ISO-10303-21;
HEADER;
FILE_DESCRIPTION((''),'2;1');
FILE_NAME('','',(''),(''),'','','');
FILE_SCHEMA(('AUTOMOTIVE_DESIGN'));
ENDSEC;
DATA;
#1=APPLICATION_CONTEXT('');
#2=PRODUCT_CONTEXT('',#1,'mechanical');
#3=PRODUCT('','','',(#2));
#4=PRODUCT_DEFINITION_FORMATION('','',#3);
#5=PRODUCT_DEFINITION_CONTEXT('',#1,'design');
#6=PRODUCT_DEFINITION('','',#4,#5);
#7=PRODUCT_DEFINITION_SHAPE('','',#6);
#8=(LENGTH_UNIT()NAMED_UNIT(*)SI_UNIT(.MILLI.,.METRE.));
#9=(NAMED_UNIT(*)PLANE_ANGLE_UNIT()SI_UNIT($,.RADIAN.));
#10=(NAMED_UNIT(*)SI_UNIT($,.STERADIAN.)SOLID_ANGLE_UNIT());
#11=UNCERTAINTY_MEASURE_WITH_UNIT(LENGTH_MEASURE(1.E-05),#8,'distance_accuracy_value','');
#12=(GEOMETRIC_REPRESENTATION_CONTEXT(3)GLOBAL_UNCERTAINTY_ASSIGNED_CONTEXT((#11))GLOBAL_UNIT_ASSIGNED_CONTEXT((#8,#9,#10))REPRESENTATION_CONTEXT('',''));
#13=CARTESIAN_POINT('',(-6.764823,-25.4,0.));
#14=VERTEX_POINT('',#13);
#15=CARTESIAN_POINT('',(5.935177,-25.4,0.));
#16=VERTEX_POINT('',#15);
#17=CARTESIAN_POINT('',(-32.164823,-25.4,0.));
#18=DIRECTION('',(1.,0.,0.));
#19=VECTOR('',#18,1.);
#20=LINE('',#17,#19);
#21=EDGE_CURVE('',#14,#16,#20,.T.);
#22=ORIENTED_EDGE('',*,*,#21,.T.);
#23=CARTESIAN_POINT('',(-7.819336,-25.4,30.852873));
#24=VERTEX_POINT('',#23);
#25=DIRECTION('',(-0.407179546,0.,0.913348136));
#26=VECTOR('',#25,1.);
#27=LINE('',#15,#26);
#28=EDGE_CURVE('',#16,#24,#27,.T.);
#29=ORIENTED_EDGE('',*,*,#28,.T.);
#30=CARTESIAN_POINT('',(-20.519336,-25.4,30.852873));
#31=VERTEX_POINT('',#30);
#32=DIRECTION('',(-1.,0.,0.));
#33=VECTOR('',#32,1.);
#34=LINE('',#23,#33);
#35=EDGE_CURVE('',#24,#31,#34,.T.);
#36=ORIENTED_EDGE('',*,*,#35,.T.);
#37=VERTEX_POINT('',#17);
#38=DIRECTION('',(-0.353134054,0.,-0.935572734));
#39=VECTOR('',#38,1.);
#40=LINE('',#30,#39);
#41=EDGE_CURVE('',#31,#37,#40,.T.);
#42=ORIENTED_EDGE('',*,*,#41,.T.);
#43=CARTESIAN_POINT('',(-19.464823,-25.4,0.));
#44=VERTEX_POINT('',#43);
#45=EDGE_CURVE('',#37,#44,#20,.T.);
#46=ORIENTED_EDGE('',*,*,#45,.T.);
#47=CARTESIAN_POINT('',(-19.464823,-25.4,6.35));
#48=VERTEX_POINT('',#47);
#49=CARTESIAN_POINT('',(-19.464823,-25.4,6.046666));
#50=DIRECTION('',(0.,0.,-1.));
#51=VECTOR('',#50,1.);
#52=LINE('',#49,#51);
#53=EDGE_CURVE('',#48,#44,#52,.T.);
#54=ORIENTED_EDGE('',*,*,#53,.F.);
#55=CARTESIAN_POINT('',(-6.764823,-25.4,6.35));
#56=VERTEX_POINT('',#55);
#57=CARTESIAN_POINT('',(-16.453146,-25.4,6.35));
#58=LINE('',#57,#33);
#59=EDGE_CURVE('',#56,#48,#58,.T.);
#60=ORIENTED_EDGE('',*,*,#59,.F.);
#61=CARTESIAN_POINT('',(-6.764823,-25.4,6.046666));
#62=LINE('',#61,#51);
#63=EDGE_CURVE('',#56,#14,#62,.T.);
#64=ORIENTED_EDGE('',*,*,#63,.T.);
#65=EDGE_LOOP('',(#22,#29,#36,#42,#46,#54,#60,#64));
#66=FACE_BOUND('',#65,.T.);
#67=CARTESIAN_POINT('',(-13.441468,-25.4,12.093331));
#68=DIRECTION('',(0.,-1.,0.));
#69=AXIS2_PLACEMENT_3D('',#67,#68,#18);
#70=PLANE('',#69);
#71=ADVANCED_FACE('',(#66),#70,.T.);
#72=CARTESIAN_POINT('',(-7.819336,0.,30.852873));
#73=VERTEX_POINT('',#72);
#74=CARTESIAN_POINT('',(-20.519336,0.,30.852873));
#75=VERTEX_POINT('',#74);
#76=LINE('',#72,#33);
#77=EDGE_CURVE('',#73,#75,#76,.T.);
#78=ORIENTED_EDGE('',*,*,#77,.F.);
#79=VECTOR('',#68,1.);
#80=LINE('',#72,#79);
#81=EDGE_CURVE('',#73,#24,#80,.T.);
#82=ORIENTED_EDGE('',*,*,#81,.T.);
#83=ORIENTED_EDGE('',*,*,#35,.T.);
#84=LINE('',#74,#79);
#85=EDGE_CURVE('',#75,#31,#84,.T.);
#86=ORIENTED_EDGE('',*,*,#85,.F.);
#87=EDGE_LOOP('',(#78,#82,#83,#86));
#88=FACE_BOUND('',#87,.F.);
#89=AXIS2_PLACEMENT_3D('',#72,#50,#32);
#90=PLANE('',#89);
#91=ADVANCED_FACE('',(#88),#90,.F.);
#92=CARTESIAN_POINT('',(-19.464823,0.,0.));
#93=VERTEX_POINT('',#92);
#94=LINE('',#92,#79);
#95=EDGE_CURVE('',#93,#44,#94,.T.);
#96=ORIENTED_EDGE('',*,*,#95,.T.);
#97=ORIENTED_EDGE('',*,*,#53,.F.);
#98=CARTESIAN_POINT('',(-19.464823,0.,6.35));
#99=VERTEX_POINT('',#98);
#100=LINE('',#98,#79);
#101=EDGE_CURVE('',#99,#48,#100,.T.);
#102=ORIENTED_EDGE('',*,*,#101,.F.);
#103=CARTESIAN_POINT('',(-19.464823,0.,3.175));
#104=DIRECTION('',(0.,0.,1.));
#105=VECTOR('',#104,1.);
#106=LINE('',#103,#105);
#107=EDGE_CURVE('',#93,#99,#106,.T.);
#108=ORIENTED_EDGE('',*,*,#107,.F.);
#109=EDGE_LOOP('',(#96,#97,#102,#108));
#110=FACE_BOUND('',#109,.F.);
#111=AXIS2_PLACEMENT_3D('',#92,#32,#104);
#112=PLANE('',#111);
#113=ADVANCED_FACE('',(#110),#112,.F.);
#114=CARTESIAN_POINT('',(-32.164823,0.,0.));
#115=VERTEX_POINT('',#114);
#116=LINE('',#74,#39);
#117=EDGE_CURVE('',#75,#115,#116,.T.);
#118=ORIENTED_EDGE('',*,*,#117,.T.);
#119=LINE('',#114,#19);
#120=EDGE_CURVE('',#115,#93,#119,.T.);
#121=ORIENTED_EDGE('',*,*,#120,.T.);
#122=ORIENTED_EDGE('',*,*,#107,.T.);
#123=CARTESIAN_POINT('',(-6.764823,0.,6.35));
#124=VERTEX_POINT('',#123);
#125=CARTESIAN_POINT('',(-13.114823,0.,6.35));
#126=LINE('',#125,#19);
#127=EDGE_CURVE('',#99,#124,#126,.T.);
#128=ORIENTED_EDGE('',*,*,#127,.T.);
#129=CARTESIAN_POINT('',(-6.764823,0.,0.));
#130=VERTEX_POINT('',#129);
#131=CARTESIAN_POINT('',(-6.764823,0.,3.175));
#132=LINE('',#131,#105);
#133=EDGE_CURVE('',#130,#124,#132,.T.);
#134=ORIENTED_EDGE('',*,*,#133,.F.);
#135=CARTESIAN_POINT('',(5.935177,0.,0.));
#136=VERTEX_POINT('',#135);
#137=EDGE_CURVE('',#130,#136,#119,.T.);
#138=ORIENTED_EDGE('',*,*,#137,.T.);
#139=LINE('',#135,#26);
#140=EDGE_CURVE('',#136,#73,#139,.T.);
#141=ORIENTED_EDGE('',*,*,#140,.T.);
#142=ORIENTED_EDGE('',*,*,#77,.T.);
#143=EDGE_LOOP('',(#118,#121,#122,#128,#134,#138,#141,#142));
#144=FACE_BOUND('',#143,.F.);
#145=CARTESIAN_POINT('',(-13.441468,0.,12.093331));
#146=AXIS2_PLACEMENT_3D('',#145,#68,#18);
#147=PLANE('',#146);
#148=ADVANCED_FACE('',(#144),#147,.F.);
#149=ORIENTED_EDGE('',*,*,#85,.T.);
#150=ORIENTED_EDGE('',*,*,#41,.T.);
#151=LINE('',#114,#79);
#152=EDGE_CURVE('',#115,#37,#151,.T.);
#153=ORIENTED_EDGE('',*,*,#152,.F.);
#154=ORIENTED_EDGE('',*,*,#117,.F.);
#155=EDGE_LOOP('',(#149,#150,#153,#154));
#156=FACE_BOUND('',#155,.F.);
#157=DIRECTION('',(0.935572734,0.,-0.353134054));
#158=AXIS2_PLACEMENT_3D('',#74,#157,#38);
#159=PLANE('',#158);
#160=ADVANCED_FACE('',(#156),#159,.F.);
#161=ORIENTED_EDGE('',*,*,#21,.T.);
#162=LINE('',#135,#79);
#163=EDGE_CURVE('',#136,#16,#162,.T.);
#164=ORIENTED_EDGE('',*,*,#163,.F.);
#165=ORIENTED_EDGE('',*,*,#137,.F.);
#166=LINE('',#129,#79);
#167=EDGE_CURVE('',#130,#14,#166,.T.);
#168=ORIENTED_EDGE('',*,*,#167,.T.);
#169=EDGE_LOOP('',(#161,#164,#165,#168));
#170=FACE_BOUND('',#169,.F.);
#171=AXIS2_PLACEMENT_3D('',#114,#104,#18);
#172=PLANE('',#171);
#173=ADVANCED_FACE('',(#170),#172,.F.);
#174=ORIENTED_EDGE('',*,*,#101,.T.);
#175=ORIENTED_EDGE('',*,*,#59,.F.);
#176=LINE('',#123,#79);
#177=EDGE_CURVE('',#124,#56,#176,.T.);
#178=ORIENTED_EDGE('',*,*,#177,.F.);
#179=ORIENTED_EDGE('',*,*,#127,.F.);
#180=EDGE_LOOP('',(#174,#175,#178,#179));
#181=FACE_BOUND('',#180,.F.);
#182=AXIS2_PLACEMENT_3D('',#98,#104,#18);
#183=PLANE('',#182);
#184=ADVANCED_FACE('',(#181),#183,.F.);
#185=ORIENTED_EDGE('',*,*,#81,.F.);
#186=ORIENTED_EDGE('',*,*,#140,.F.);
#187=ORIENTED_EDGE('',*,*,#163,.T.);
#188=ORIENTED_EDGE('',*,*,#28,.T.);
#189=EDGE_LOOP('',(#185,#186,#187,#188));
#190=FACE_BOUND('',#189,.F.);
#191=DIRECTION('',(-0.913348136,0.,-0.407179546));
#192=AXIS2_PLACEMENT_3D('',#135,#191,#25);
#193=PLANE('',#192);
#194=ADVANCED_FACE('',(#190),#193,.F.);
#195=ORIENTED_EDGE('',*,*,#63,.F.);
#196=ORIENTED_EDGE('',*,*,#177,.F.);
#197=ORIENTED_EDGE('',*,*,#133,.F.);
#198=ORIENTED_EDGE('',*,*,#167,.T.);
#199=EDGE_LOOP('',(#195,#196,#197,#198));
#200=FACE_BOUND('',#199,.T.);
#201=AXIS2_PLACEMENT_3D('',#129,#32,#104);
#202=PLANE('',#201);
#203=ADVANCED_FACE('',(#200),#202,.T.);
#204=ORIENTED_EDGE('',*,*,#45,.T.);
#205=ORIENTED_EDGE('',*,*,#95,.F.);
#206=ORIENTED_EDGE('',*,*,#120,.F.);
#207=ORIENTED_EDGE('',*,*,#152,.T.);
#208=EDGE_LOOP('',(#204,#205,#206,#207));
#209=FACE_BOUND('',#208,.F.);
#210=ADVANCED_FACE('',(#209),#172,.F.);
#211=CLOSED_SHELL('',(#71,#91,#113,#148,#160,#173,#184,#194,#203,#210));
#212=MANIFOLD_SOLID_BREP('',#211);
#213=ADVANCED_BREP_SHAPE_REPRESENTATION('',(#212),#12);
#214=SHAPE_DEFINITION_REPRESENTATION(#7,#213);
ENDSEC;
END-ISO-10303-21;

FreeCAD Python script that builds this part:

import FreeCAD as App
import Part
import Sketcher

V = App.Vector
Q = App.Units.Quantity


def add_polygon(sketch, points):
    """Adds a closed chain of lines whose ends are joined by coincident constraints."""
    first, n = sketch.GeometryCount, len(points)
    for a, b in zip(points, points[1:] + points[:1]):
        sketch.addGeometry(Part.LineSegment(App.Vector(*a, 0), App.Vector(*b, 0)), False)
    for i in range(n):
        sketch.addConstraint(Sketcher.Constraint("Coincident", first + i, 2, first + (i + 1) % n, 1))

doc = App.newDocument("Part")
body = doc.addObject("PartDesign::Body", "Body")

# Sketch on XZ plane
sketch1 = doc.addObject("Sketcher::SketchObject", "Sketch")
body.addObject(sketch1)
sketch1.AttachmentSupport = (doc.XZ_Plane, [""])
sketch1.MapMode = "FlatFace"
add_polygon(sketch1, [(-8, 31), (-21, 31), (-32, 0), (6, 0)])  # lines 0-3
sketch1.addConstraint([
    Sketcher.Constraint("Horizontal", 0),
    Sketcher.Constraint("Horizontal", 2),
    Sketcher.Constraint("PointOnObject", 1, 2, -1),
    Sketcher.Constraint("DistanceX", 0, 2, 0, 1, Q("0.5 in")),
    Sketcher.Constraint("DistanceX", 2, 1, 2, 2, Q("1.5 in")),
    Sketcher.Constraint("Distance", 3, Q("33.77997 mm")),
    Sketcher.Constraint("Distance", 1, Q("32.977525 mm")),
    Sketcher.Constraint("DistanceX", 0, 2, -1, 1, Q("20.519336 mm")),
])
pad1 = doc.addObject("PartDesign::Pad", "Pad")
body.addObject(pad1)
pad1.Profile = sketch1
pad1.Length = Q("1 in")

# Sketch on XZ plane
sketch2 = doc.addObject("Sketcher::SketchObject", "Sketch001")
body.addObject(sketch2)
sketch2.AttachmentSupport = (doc.XZ_Plane, [""])
sketch2.MapMode = "FlatFace"
add_polygon(sketch2, [(-19, 6), (-19, 0), (-7, 0), (-7, 6)])  # lines 0-3
sketch2.addConstraint([
    Sketcher.Constraint("Vertical", 0),
    Sketcher.Constraint("Horizontal", 1),
    Sketcher.Constraint("Vertical", 2),
    Sketcher.Constraint("Horizontal", 3),
    Sketcher.Constraint("PointOnObject", 0, 2, -1),
    Sketcher.Constraint("DistanceX", 1, 1, 1, 2, Q("0.5 in")),
    Sketcher.Constraint("DistanceY", 0, 2, 0, 1, Q("0.25 in")),
    Sketcher.Constraint("DistanceX", 0, 2, -1, 1, Q("19.464823 mm")),
])
pocket1 = doc.addObject("PartDesign::Pocket", "Pocket")
body.addObject(pocket1)
pocket1.Profile = sketch2
pocket1.Length = Q("1.25 in")
pocket1.Reversed = True

doc.recompute()
